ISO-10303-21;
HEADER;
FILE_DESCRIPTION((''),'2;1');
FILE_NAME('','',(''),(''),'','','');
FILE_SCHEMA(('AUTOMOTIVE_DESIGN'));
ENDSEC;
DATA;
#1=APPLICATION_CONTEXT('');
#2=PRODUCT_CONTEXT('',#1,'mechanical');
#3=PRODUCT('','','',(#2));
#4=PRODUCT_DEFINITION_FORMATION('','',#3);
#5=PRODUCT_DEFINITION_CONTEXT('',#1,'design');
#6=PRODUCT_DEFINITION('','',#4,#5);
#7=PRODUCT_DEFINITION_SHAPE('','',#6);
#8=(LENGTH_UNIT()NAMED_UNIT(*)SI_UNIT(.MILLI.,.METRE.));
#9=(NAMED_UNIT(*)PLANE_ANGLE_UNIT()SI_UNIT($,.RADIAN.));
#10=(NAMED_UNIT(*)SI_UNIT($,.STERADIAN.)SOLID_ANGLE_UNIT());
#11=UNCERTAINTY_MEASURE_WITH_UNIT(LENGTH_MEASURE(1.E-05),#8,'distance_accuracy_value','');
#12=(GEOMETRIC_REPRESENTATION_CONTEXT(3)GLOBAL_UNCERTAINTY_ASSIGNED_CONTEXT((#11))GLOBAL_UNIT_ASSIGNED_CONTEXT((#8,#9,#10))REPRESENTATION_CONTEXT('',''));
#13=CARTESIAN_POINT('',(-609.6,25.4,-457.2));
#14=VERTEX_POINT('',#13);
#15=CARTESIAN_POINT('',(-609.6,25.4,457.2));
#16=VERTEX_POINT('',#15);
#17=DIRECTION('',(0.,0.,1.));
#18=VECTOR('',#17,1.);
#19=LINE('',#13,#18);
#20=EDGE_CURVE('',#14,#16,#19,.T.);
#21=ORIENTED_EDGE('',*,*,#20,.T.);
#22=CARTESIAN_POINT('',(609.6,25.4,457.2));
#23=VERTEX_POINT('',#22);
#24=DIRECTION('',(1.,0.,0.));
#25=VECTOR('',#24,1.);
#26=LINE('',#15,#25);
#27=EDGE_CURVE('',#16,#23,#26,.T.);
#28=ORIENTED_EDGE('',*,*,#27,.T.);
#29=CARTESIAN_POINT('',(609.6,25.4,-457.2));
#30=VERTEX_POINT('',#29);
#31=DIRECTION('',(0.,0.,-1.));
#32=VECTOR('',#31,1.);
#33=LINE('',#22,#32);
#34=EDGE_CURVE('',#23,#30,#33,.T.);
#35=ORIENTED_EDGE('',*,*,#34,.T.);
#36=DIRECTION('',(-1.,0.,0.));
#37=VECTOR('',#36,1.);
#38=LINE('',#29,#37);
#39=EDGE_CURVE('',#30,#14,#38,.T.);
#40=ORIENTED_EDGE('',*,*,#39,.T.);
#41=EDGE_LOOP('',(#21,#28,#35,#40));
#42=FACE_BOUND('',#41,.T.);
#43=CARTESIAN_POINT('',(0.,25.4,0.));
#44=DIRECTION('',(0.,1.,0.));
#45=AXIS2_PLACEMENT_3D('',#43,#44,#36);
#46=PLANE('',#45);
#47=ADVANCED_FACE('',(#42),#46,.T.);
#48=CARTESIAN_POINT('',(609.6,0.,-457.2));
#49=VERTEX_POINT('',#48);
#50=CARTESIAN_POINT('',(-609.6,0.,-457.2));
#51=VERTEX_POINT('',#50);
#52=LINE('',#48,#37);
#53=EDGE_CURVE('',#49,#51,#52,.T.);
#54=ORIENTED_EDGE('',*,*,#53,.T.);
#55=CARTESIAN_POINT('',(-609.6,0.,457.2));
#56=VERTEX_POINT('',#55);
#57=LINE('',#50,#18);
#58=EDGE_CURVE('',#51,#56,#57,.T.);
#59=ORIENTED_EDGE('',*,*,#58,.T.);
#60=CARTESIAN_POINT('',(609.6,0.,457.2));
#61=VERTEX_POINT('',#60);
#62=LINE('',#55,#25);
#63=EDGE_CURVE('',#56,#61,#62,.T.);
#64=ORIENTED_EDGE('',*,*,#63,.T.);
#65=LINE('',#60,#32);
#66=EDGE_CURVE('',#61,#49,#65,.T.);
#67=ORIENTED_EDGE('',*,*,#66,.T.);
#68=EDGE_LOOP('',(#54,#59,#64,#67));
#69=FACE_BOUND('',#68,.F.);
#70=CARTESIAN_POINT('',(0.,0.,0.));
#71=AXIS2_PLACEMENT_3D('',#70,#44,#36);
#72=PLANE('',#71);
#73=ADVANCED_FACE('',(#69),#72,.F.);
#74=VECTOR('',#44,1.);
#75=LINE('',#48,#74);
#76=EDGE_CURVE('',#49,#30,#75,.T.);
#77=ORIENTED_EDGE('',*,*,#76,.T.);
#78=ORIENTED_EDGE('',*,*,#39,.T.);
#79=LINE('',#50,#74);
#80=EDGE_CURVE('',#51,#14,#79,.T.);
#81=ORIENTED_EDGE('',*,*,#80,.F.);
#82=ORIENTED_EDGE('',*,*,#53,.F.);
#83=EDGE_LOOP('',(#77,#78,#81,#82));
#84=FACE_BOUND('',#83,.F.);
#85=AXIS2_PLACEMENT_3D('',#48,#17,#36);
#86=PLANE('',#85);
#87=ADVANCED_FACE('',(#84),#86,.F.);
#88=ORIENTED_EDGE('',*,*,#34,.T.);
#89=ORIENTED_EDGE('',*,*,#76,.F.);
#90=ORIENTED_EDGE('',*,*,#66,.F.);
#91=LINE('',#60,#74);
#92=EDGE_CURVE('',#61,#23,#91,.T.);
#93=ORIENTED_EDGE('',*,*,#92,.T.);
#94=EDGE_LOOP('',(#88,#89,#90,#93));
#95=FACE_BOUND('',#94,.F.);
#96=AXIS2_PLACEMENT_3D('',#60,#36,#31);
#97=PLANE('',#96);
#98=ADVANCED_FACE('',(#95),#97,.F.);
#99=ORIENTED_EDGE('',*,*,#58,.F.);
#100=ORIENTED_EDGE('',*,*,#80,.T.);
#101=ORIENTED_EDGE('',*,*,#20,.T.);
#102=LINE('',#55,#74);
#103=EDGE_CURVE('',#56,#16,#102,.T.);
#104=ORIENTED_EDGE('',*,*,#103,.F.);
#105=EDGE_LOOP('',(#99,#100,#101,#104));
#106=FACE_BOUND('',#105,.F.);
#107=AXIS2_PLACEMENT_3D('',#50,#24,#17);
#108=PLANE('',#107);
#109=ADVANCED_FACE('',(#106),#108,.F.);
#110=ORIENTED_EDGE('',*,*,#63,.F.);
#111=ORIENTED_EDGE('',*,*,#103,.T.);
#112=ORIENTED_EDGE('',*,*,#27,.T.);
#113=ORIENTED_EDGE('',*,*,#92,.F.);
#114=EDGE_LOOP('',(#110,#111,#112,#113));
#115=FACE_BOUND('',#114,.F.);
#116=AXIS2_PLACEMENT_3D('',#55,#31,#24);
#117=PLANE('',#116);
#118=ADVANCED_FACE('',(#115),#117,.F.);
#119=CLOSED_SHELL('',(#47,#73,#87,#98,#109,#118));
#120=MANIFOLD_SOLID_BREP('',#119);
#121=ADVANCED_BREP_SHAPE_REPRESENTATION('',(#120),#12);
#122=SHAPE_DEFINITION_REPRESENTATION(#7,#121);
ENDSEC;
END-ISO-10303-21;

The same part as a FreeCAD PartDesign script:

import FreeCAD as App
import Part
import Sketcher

V = App.Vector
Q = App.Units.Quantity


def add_polygon(sketch, points):
    """Adds a closed chain of lines whose ends are joined by coincident constraints."""
    first, n = sketch.GeometryCount, len(points)
    for a, b in zip(points, points[1:] + points[:1]):
        sketch.addGeometry(Part.LineSegment(App.Vector(*a, 0), App.Vector(*b, 0)), False)
    for i in range(n):
        sketch.addConstraint(Sketcher.Constraint("Coincident", first + i, 2, first + (i + 1) % n, 1))

doc = App.newDocument("Part")
body = doc.addObject("PartDesign::Body", "Body")

sketch1 = doc.addObject("Sketcher::SketchObject", "Sketch")
body.addObject(sketch1)
sketch1.AttachmentSupport = (doc.XZ_Plane, [""])
sketch1.MapMode = "FlatFace"
add_polygon(sketch1, [(-610, -457), (-610, 457), (610, 457), (610, -457)])
sketch1.addConstraint(Sketcher.Constraint("Vertical", 0))
sketch1.addConstraint(Sketcher.Constraint("Horizontal", 1))
sketch1.addConstraint(Sketcher.Constraint("Vertical", 2))
sketch1.addConstraint(Sketcher.Constraint("Horizontal", 3))
sketch1.addConstraint(Sketcher.Constraint("Symmetric", 0, 2, 2, 2, -1, 1))
sketch1.addConstraint(Sketcher.Constraint("DistanceX", 1, 1, 1, 2, Q("48 in")))
sketch1.addConstraint(Sketcher.Constraint("DistanceY", 0, 1, 0, 2, Q("36 in")))
pad1 = doc.addObject("PartDesign::Pad", "Pad")
body.addObject(pad1)
pad1.Profile = sketch1
pad1.Length = Q("1 in")
pad1.Reversed = True

doc.recompute()
